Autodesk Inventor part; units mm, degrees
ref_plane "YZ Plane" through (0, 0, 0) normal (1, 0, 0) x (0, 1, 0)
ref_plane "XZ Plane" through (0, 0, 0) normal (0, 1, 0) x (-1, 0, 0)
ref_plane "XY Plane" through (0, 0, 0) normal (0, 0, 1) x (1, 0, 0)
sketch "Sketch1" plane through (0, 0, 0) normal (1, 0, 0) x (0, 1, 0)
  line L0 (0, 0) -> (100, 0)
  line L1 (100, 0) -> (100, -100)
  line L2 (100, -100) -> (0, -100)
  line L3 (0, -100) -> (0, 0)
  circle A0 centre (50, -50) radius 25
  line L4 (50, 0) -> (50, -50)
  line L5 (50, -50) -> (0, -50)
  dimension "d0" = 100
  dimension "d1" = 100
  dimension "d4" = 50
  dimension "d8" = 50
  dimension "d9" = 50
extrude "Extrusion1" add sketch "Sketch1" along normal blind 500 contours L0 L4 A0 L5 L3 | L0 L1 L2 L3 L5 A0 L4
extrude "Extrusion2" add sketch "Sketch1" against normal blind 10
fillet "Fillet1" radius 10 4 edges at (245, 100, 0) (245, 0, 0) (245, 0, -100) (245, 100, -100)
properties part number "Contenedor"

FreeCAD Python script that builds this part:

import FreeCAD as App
import Part
import Sketcher


def edges_at(feature, points):
    """Names of the edges that pass closest to the given points."""
    edges = feature.Shape.Edges
    near = lambda p: min(range(len(edges)), key=lambda i: edges[i].distToShape(Part.Vertex(*p))[0])
    return sorted({f"Edge{near(p) + 1}" for p in points})

doc = App.newDocument("Part")
params = doc.addObject("Spreadsheet::Sheet", "Params")
for row, (alias, value) in enumerate([
    ("sketch1_diameter", "50 mm"),
    ("sketch1_width", "100 mm"),
    ("pad1_length", "500 mm"),
    ("sketch2_width", "100 mm"),
    ("pad2_length", "10 mm"),
    ("fillet_radius", "10 mm"),
], start=1):
    params.set(f"A{row}", alias)
    params.set(f"B{row}", "=" + value)
    params.setAlias(f"B{row}", alias)

body = doc.addObject("PartDesign::Body", "Body")

# Sketch on YZ plane
sketch1 = body.newObject("Sketcher::SketchObject", "Sketch")
sketch1.AttachmentSupport = (doc.getObject("YZ_Plane"), [""])
sketch1.MapMode = "FlatFace"
sketch1.addGeometry(Part.LineSegment(App.Vector(0, 0, 0), App.Vector(0, -100, 0)), False)
sketch1.addGeometry(Part.LineSegment(App.Vector(0, -100, 0), App.Vector(100, -100, 0)), False)
sketch1.addGeometry(Part.LineSegment(App.Vector(100, -100, 0), App.Vector(100, 0, 0)), False)
sketch1.addGeometry(Part.LineSegment(App.Vector(100, 0, 0), App.Vector(0, 0, 0)), False)
sketch1.addGeometry(Part.Circle(App.Vector(50, -50, 0), App.Vector(0, 0, 1), 25), False)
sketch1.addConstraint(Sketcher.Constraint("Coincident", 0, 2, 1, 1))
sketch1.addConstraint(Sketcher.Constraint("Coincident", 1, 2, 2, 1))
sketch1.addConstraint(Sketcher.Constraint("Coincident", 2, 2, 3, 1))
sketch1.addConstraint(Sketcher.Constraint("Coincident", 3, 2, 0, 1))
sketch1.addConstraint(Sketcher.Constraint("Vertical", 0))
sketch1.addConstraint(Sketcher.Constraint("Horizontal", 1))
sketch1.addConstraint(Sketcher.Constraint("Vertical", 2))
sketch1.addConstraint(Sketcher.Constraint("Horizontal", 3))
sketch1.addConstraint(Sketcher.Constraint("Coincident", 3, 2, -1, 1))
sketch1.addConstraint(Sketcher.Constraint("Equal", 3, 0))
sketch1.addConstraint(Sketcher.Constraint("Diameter", 4, 50.0))
sketch1.addConstraint(Sketcher.Constraint("DistanceX", 1, 1, 1, 2, 100.0))
sketch1.addConstraint(Sketcher.Constraint("DistanceX", -1, 1, 4, 3, 50.0))
sketch1.addConstraint(Sketcher.Constraint("DistanceY", 4, 3, -1, 1, 50.0))
sketch1.setExpression("Constraints[10]", "Params.sketch1_diameter")
sketch1.setExpression("Constraints[11]", "Params.sketch1_width")
pad1 = body.newObject("PartDesign::Pad", "Pad")
pad1.Profile = sketch1
pad1.setExpression("Length", "Params.pad1_length")

# Sketch on YZ plane
sketch2 = body.newObject("Sketcher::SketchObject", "Sketch001")
sketch2.AttachmentSupport = (doc.getObject("YZ_Plane"), [""])
sketch2.MapMode = "FlatFace"
sketch2.addGeometry(Part.LineSegment(App.Vector(0, 0, 0), App.Vector(0, -100, 0)), False)
sketch2.addGeometry(Part.LineSegment(App.Vector(0, -100, 0), App.Vector(100, -100, 0)), False)
sketch2.addGeometry(Part.LineSegment(App.Vector(100, -100, 0), App.Vector(100, 0, 0)), False)
sketch2.addGeometry(Part.LineSegment(App.Vector(100, 0, 0), App.Vector(0, 0, 0)), False)
sketch2.addConstraint(Sketcher.Constraint("Coincident", 0, 2, 1, 1))
sketch2.addConstraint(Sketcher.Constraint("Coincident", 1, 2, 2, 1))
sketch2.addConstraint(Sketcher.Constraint("Coincident", 2, 2, 3, 1))
sketch2.addConstraint(Sketcher.Constraint("Coincident", 3, 2, 0, 1))
sketch2.addConstraint(Sketcher.Constraint("Vertical", 0))
sketch2.addConstraint(Sketcher.Constraint("Horizontal", 1))
sketch2.addConstraint(Sketcher.Constraint("Vertical", 2))
sketch2.addConstraint(Sketcher.Constraint("Horizontal", 3))
sketch2.addConstraint(Sketcher.Constraint("Coincident", 3, 2, -1, 1))
sketch2.addConstraint(Sketcher.Constraint("Equal", 3, 0))
sketch2.addConstraint(Sketcher.Constraint("DistanceX", 1, 1, 1, 2, 100.0))
sketch2.setExpression("Constraints[10]", "Params.sketch2_width")
pad2 = body.newObject("PartDesign::Pad", "Pad001")
pad2.Profile = sketch2
pad2.setExpression("Length", "Params.pad2_length")
pad2.Reversed = True
doc.recompute()

fillet = body.newObject("PartDesign::Fillet", "Fillet")
fillet.Base = (pad2, edges_at(pad2, [
    (245, 100, 0),
    (245, 0, 0),
    (245, 0, -100),
    (245, 100, -100),
]))
fillet.setExpression("Radius", "Params.fillet_radius")

doc.recompute()
